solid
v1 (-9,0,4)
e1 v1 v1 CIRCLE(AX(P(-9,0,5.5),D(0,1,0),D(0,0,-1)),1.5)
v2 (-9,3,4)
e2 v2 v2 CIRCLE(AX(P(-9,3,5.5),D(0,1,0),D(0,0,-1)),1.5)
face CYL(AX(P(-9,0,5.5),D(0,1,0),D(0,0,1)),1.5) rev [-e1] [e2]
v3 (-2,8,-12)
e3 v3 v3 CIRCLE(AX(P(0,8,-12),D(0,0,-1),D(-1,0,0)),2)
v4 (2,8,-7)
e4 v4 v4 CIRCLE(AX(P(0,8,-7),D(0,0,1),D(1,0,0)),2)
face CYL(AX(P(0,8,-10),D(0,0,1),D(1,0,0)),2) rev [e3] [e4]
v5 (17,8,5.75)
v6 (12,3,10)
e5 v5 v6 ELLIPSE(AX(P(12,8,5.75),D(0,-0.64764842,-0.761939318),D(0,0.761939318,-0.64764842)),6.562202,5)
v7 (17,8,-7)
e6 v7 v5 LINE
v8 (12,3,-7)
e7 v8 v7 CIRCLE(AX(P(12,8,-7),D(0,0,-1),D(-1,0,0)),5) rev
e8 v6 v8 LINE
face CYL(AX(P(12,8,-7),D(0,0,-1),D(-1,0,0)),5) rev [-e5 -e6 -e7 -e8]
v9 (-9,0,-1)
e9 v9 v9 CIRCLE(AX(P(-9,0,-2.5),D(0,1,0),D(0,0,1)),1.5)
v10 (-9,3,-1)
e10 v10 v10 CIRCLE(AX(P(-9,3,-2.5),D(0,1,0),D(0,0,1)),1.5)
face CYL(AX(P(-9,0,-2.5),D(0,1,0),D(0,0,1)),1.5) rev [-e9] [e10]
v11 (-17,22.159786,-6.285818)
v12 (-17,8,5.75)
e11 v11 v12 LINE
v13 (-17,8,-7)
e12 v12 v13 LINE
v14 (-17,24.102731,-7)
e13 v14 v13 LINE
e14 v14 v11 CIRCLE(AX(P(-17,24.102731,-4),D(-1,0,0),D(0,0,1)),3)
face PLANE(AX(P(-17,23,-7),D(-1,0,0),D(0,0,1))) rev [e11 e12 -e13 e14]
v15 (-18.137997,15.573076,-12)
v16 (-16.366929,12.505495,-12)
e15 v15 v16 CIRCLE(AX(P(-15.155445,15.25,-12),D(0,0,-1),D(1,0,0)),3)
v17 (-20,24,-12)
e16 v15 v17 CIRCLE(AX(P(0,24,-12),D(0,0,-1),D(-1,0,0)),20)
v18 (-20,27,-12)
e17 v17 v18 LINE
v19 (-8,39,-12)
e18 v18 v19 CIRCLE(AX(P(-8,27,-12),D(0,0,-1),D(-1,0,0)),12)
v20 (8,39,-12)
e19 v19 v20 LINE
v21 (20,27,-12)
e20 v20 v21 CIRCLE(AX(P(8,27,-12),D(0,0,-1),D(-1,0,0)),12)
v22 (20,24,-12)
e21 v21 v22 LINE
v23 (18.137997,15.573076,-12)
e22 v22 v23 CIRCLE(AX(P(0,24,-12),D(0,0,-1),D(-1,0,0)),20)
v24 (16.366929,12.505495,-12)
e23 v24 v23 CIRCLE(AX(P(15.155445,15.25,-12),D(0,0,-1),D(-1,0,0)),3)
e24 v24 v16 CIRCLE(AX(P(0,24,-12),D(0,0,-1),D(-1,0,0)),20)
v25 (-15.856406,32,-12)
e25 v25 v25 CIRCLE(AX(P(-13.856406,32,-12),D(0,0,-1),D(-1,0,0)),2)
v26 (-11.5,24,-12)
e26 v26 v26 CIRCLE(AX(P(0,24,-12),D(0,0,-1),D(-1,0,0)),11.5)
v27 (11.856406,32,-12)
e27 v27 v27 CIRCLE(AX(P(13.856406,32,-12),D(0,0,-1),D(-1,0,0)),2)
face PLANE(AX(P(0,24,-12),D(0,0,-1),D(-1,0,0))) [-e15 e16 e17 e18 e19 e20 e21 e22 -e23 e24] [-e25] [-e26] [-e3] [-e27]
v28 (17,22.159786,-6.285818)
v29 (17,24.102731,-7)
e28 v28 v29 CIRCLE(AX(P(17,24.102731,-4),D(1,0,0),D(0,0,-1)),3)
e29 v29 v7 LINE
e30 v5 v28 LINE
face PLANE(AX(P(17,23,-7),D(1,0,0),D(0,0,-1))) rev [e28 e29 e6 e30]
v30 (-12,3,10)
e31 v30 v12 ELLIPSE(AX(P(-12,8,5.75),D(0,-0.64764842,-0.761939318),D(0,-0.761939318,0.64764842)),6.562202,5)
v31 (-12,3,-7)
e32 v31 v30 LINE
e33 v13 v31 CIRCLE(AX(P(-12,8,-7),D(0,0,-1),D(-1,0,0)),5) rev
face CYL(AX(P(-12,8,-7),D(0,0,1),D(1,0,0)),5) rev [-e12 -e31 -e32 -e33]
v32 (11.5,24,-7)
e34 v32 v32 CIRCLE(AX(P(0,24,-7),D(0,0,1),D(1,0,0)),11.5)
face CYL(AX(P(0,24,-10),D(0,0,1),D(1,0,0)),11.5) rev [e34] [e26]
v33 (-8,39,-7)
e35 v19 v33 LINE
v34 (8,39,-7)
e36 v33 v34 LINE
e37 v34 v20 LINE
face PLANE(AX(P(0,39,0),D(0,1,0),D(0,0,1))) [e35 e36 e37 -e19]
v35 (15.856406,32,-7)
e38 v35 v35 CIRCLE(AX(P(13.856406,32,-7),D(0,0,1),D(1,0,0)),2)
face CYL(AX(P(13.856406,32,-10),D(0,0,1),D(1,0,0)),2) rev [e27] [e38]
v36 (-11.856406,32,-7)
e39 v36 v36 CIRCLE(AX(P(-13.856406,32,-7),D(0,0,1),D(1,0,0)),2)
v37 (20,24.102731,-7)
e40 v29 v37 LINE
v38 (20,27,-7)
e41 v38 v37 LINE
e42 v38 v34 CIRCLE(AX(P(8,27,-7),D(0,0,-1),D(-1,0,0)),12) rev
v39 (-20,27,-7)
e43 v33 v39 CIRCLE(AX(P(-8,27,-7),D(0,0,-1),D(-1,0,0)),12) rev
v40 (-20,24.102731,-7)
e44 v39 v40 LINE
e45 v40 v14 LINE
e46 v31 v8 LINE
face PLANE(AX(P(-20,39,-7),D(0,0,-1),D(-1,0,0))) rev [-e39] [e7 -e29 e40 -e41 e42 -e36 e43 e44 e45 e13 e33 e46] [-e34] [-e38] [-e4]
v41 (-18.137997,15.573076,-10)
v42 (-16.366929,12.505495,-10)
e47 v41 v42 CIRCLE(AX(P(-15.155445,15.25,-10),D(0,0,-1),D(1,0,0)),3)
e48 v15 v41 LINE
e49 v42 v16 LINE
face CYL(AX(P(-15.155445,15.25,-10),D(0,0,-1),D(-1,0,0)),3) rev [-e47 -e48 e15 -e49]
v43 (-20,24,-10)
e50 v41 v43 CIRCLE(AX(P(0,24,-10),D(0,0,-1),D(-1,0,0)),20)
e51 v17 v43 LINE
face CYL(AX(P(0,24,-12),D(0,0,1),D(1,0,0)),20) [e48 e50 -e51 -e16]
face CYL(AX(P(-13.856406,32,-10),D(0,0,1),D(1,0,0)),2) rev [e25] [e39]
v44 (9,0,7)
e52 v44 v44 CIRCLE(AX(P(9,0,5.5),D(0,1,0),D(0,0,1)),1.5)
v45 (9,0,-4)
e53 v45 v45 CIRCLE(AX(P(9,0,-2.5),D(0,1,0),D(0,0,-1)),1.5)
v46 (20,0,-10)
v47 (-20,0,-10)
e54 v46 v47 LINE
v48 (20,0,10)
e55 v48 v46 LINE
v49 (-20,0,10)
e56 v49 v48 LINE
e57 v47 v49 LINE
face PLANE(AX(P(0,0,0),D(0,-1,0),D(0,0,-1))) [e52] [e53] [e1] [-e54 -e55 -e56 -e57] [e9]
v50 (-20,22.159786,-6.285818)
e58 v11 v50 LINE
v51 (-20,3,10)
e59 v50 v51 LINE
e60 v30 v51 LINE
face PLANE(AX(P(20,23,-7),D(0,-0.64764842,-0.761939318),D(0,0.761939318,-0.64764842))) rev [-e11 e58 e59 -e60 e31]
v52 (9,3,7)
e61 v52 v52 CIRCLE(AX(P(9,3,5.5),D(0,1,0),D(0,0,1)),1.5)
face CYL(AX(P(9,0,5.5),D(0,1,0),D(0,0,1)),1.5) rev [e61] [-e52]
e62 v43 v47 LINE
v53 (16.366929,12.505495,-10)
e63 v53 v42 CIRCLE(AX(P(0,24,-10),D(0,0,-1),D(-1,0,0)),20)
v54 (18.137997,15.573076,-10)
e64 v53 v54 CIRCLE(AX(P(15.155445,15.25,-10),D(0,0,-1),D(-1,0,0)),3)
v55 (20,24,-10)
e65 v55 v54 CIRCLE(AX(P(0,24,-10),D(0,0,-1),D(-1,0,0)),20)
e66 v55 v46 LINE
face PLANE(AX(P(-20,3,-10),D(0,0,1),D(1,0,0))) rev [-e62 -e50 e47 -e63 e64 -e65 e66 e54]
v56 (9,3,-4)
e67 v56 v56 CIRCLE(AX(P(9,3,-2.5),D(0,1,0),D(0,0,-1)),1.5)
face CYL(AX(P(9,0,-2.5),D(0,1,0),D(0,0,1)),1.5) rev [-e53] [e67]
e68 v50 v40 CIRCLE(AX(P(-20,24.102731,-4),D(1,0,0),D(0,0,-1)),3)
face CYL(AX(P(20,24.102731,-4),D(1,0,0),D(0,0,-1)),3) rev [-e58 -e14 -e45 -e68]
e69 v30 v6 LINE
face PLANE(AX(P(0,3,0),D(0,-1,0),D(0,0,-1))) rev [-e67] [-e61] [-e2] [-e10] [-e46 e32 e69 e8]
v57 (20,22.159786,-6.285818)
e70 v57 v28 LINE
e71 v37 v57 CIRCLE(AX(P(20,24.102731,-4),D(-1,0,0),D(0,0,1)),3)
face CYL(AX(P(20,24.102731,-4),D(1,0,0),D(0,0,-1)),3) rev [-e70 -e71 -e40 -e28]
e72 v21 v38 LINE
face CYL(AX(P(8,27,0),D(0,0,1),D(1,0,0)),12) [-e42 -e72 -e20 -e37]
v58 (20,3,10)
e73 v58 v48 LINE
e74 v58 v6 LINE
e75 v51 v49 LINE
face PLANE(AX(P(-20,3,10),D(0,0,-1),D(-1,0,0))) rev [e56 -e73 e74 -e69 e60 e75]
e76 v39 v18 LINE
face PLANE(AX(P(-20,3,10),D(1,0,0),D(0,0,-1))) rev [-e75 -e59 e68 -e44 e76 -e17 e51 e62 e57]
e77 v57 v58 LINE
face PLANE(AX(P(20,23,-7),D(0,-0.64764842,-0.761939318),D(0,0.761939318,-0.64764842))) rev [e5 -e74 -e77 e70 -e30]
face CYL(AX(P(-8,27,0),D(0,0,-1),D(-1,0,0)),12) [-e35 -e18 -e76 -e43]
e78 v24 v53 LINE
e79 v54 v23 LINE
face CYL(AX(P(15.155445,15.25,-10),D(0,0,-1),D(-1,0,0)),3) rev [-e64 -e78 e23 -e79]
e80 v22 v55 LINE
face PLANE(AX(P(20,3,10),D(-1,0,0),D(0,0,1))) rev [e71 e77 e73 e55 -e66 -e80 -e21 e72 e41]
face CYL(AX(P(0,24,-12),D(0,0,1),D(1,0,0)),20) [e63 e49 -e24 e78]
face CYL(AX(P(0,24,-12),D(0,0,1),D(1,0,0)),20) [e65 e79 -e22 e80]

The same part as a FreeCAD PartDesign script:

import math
import FreeCAD as App
import Part
import Sketcher

V = App.Vector
Q = App.Units.Quantity


def edges_at(feature, points):
    """Names of the edges that pass closest to the given points."""
    edges = feature.Shape.Edges
    near = lambda p: min(range(len(edges)), key=lambda i: edges[i].distToShape(Part.Vertex(*p))[0])
    return sorted({f"Edge{near(p) + 1}" for p in points})


def add_polygon(sketch, points):
    """Adds a closed chain of lines whose ends are joined by coincident constraints."""
    first, n = sketch.GeometryCount, len(points)
    for a, b in zip(points, points[1:] + points[:1]):
        sketch.addGeometry(Part.LineSegment(App.Vector(*a, 0), App.Vector(*b, 0)), False)
    for i in range(n):
        sketch.addConstraint(Sketcher.Constraint("Coincident", first + i, 2, first + (i + 1) % n, 1))

doc = App.newDocument("Part")
body = doc.addObject("PartDesign::Body", "Body")

# Sketch on XZ plane
sketch1 = doc.addObject("Sketcher::SketchObject", "Sketch")
body.addObject(sketch1)
sketch1.AttachmentSupport = (doc.XZ_Plane, [""])
sketch1.MapMode = "FlatFace"
add_polygon(sketch1, [(-20, -10), (-20, 10), (20, 10), (20, -10)])  # lines 0-3
sketch1.addConstraint(Sketcher.Constraint("Vertical", 0))
sketch1.addConstraint(Sketcher.Constraint("Horizontal", 1))
sketch1.addConstraint(Sketcher.Constraint("Vertical", 2))
sketch1.addConstraint(Sketcher.Constraint("Horizontal", 3))
sketch1.addConstraint(Sketcher.Constraint("Symmetric", 0, 2, 2, 2, -1, 1))
sketch1.addConstraint(Sketcher.Constraint("DistanceX", 1, 1, 1, 2, Q("40 mm")))
sketch1.addConstraint(Sketcher.Constraint("DistanceY", 0, 1, 0, 2, Q("20 mm")))
pad1 = doc.addObject("PartDesign::Pad", "Pad")
body.addObject(pad1)
pad1.Profile = sketch1
pad1.Length = 3
pad1.Reversed = True

# Sketch on XZ plane
sketch2 = doc.addObject("Sketcher::SketchObject", "Sketch001")
body.addObject(sketch2)
sketch2.AttachmentSupport = (doc.XZ_Plane, [""])
sketch2.MapMode = "FlatFace"
sketch2.AttachmentOffset = App.Placement(V(0, 0, -3), App.Rotation())
add_polygon(sketch2, [(-20, -10), (-20, -7), (20, -7), (20, -10)])  # lines 0-3
sketch2.addConstraint(Sketcher.Constraint("Vertical", 0))
sketch2.addConstraint(Sketcher.Constraint("Horizontal", 1))
sketch2.addConstraint(Sketcher.Constraint("Vertical", 2))
sketch2.addConstraint(Sketcher.Constraint("Horizontal", 3))
sketch2.addConstraint(Sketcher.Constraint("DistanceX", 1, 1, 1, 2, Q("40 mm")))
sketch2.addConstraint(Sketcher.Constraint("DistanceY", 0, 1, 0, 2, Q("3 mm")))
sketch2.addConstraint(Sketcher.Constraint("DistanceX", 0, 2, -1, 1, Q("20 mm")))
sketch2.addConstraint(Sketcher.Constraint("DistanceY", 0, 2, -1, 1, Q("7 mm")))
pad2 = doc.addObject("PartDesign::Pad", "Pad001")
body.addObject(pad2)
pad2.Profile = sketch2
pad2.Length = 36
pad2.Reversed = True

# Sketch on XY plane
sketch3 = doc.addObject("Sketcher::SketchObject", "Sketch002")
body.addObject(sketch3)
sketch3.AttachmentSupport = (doc.XY_Plane, [""])
sketch3.MapMode = "FlatFace"
sketch3.AttachmentOffset = App.Placement(V(0, 0, -7), App.Rotation())
sketch3.addGeometry(Part.Circle(V(0, 24, 0), V(0, 0, 1), 11.5), False)
sketch3.addGeometry(Part.Circle(V(13.9, 32, 0), V(0, 0, 1), 2), False)
sketch3.addGeometry(Part.Circle(V(0, 8, 0), V(0, 0, 1), 2), False)
sketch3.addGeometry(Part.Circle(V(-13.9, 32, 0), V(0, 0, 1), 2), False)
sketch3.addConstraint(Sketcher.Constraint("Equal", 1, 2))
sketch3.addConstraint(Sketcher.Constraint("Equal", 2, 3))
sketch3.addConstraint(Sketcher.Constraint("Symmetric", 1, 3, 3, 3, -2))
sketch3.addConstraint(Sketcher.Constraint("PointOnObject", 0, 3, -2))
sketch3.addConstraint(Sketcher.Constraint("PointOnObject", 2, 3, -2))
sketch3.addConstraint(Sketcher.Constraint("Diameter", 0, Q("23 mm")))
sketch3.addConstraint(Sketcher.Constraint("Diameter", 1, Q("4 mm")))
sketch3.addConstraint(Sketcher.Constraint("DistanceY", -1, 1, 0, 3, Q("24 mm")))
sketch3.addConstraint(Sketcher.Constraint("DistanceY", -1, 1, 1, 3, Q("32 mm")))
sketch3.addConstraint(Sketcher.Constraint("DistanceY", -1, 1, 2, 3, Q("8 mm")))
sketch3.addConstraint(Sketcher.Constraint("DistanceX", -1, 1, 1, 3, Q("13.856406 mm")))
pocket1 = doc.addObject("PartDesign::Pocket", "Pocket")
body.addObject(pocket1)
pocket1.Profile = sketch3
pocket1.Type = "ThroughAll"
doc.recompute()

fillet = doc.addObject("PartDesign::Fillet", "Fillet")
body.addObject(fillet)
fillet.Base = (pocket1, edges_at(pocket1, [(-20, 39, -8.5), (20, 39, -8.5)]))
fillet.Radius = 12

# Sketch on XY plane
sketch4 = doc.addObject("Sketcher::SketchObject", "Sketch003")
body.addObject(sketch4)
sketch4.AttachmentSupport = (doc.XY_Plane, [""])
sketch4.MapMode = "FlatFace"
sketch4.AttachmentOffset = App.Placement(V(0, 0, -10), App.Rotation())
sketch4.addGeometry(Part.LineSegment(V(-8, 39, 0), V(8, 39, 0)), False)
sketch4.addGeometry(Part.ArcOfCircle(Part.Circle(V(8, 27, 0), V(0, 0, 1), 12), math.radians(0), math.radians(90)), False)
sketch4.addGeometry(Part.LineSegment(V(20, 27, 0), V(20, 24, 0)), False)
sketch4.addGeometry(Part.ArcOfCircle(Part.Circle(V(0, 24, 0), V(0, 0, 1), 20), math.radians(180), math.radians(360)), False)
sketch4.addGeometry(Part.LineSegment(V(-20, 24, 0), V(-20, 27, 0)), False)
sketch4.addGeometry(Part.ArcOfCircle(Part.Circle(V(-8, 27, 0), V(0, 0, 1), 12), math.radians(90), math.radians(180)), False)
sketch4.addGeometry(Part.Circle(V(0, 8, 0), V(0, 0, 1), 2), False)
sketch4.addGeometry(Part.Circle(V(-13.9, 32, 0), V(0, 0, 1), 2), False)
sketch4.addGeometry(Part.Circle(V(0, 24, 0), V(0, 0, 1), 11.5), False)
sketch4.addGeometry(Part.Circle(V(13.9, 32, 0), V(0, 0, 1), 2), False)
sketch4.addConstraint(Sketcher.Constraint("Tangent", 0, 2, 1, 2))
sketch4.addConstraint(Sketcher.Constraint("Tangent", 1, 1, 2, 1))
sketch4.addConstraint(Sketcher.Constraint("Tangent", 2, 2, 3, 2))
sketch4.addConstraint(Sketcher.Constraint("Tangent", 3, 1, 4, 1))
sketch4.addConstraint(Sketcher.Constraint("Tangent", 4, 2, 5, 2))
sketch4.addConstraint(Sketcher.Constraint("Tangent", 5, 1, 0, 1))
sketch4.addConstraint(Sketcher.Constraint("Horizontal", 0))
sketch4.addConstraint(Sketcher.Constraint("Vertical", 2))
sketch4.addConstraint(Sketcher.Constraint("Vertical", 4))
sketch4.addConstraint(Sketcher.Constraint("Coincident", 8, 3, 3, 3))
sketch4.addConstraint(Sketcher.Constraint("Equal", 1, 5))
sketch4.addConstraint(Sketcher.Constraint("Equal", 6, 7))
sketch4.addConstraint(Sketcher.Constraint("Equal", 7, 9))
sketch4.addConstraint(Sketcher.Constraint("Symmetric", 7, 3, 9, 3, -2))
sketch4.addConstraint(Sketcher.Constraint("PointOnObject", 3, 3, -2))
sketch4.addConstraint(Sketcher.Constraint("PointOnObject", 6, 3, -2))
sketch4.addConstraint(Sketcher.Constraint("Diameter", 6, Q("4 mm")))
sketch4.addConstraint(Sketcher.Constraint("Diameter", 8, Q("23 mm")))
sketch4.addConstraint(Sketcher.Constraint("Radius", 1, Q("12 mm")))
sketch4.addConstraint(Sketcher.Constraint("Radius", 3, Q("20 mm")))
sketch4.addConstraint(Sketcher.Constraint("DistanceY", 2, 2, 2, 1, Q("3 mm")))
sketch4.addConstraint(Sketcher.Constraint("DistanceY", -1, 1, 1, 3, Q("27 mm")))
sketch4.addConstraint(Sketcher.Constraint("DistanceY", -1, 1, 6, 3, Q("8 mm")))
sketch4.addConstraint(Sketcher.Constraint("DistanceY", -1, 1, 7, 3, Q("32 mm")))
sketch4.addConstraint(Sketcher.Constraint("DistanceX", 7, 3, -1, 1, Q("13.856406 mm")))
pad3 = doc.addObject("PartDesign::Pad", "Pad002")
body.addObject(pad3)
pad3.Profile = sketch4
pad3.Length = 2
pad3.Reversed = True

# Sketch on XY plane
sketch5 = doc.addObject("Sketcher::SketchObject", "Sketch004")
body.addObject(sketch5)
sketch5.AttachmentSupport = (doc.XY_Plane, [""])
sketch5.MapMode = "FlatFace"
sketch5.AttachmentOffset = App.Placement(V(0, 0, -12), App.Rotation())
sketch5.addGeometry(Part.Circle(V(15.2, 15.2, 0), V(0, 0, 1), 3), False)
sketch5.addGeometry(Part.Circle(V(-15.2, 15.2, 0), V(0, 0, 1), 3), False)
sketch5.addConstraint(Sketcher.Constraint("Equal", 0, 1))
sketch5.addConstraint(Sketcher.Constraint("Symmetric", 0, 3, 1, 3, -2))
sketch5.addConstraint(Sketcher.Constraint("Diameter", 0, Q("6 mm")))
sketch5.addConstraint(Sketcher.Constraint("DistanceY", -1, 1, 0, 3, Q("15.25 mm")))
sketch5.addConstraint(Sketcher.Constraint("DistanceX", 1, 3, 0, 3, Q("30.310889 mm")))
pocket2 = doc.addObject("PartDesign::Pocket", "Pocket001")
body.addObject(pocket2)
pocket2.Profile = sketch5
pocket2.Length = 2
pocket2.Reversed = True

# Sketch on XZ plane
sketch6 = doc.addObject("Sketcher::SketchObject", "Sketch005")
body.addObject(sketch6)
sketch6.AttachmentSupport = (doc.XZ_Plane, [""])
sketch6.MapMode = "FlatFace"
sketch6.AttachmentOffset = App.Placement(V(0, 0, -3), App.Rotation())
add_polygon(sketch6, [(-20, -7), (-20, 10), (-17, 10), (-17, -7)])  # lines 0-3
add_polygon(sketch6, [(17, -7), (17, 10), (20, 10), (20, -7)])  # lines 4-7
sketch6.addConstraint(Sketcher.Constraint("Vertical", 0))
sketch6.addConstraint(Sketcher.Constraint("Horizontal", 1))
sketch6.addConstraint(Sketcher.Constraint("Vertical", 2))
sketch6.addConstraint(Sketcher.Constraint("Horizontal", 3))
sketch6.addConstraint(Sketcher.Constraint("Vertical", 4))
sketch6.addConstraint(Sketcher.Constraint("Horizontal", 5))
sketch6.addConstraint(Sketcher.Constraint("Vertical", 6))
sketch6.addConstraint(Sketcher.Constraint("Horizontal", 7))
sketch6.addConstraint(Sketcher.Constraint("Symmetric", 1, 2, 4, 2, -2))
sketch6.addConstraint(Sketcher.Constraint("Symmetric", 3, 2, 6, 2, -2))
sketch6.addConstraint(Sketcher.Constraint("DistanceX", 1, 1, 1, 2, Q("3 mm")))
sketch6.addConstraint(Sketcher.Constraint("DistanceY", 0, 1, 0, 2, Q("17 mm")))
sketch6.addConstraint(Sketcher.Constraint("DistanceX", 0, 2, -1, 1, Q("20 mm")))
sketch6.addConstraint(Sketcher.Constraint("DistanceY", -1, 1, 0, 2, Q("10 mm")))
pad4 = doc.addObject("PartDesign::Pad", "Pad003")
body.addObject(pad4)
pad4.Profile = sketch6
pad4.Length = 20
pad4.Reversed = True

# Sketch on YZ plane
sketch7 = doc.addObject("Sketcher::SketchObject", "Sketch006")
body.addObject(sketch7)
sketch7.AttachmentSupport = (doc.YZ_Plane, [""])
sketch7.MapMode = "FlatFace"
sketch7.AttachmentOffset = App.Placement(V(0, 0, -20), App.Rotation())
add_polygon(sketch7, [(23, -7), (3, 10), (23, 10)])  # lines 0-2
sketch7.addConstraint(Sketcher.Constraint("Horizontal", 1))
sketch7.addConstraint(Sketcher.Constraint("Vertical", 2))
sketch7.addConstraint(Sketcher.Constraint("DistanceX", 1, 1, 1, 2, Q("20 mm")))
sketch7.addConstraint(Sketcher.Constraint("DistanceY", 2, 2, 2, 1, Q("17 mm")))
sketch7.addConstraint(Sketcher.Constraint("DistanceX", -1, 1, 0, 2, Q("3 mm")))
sketch7.addConstraint(Sketcher.Constraint("DistanceY", -1, 1, 0, 2, Q("10 mm")))
pocket3 = doc.addObject("PartDesign::Pocket", "Pocket002")
body.addObject(pocket3)
pocket3.Profile = sketch7
pocket3.Type = "ThroughAll"
pocket3.Reversed = True

# Sketch on XZ plane
sketch8 = doc.addObject("Sketcher::SketchObject", "Sketch007")
body.addObject(sketch8)
sketch8.AttachmentSupport = (doc.XZ_Plane, [""])
sketch8.MapMode = "FlatFace"
sketch8.AttachmentOffset = App.Placement(V(0, 0, -3), App.Rotation())
sketch8.addGeometry(Part.Circle(V(-9, -2.5, 0), V(0, 0, 1), 1.5), False)
sketch8.addGeometry(Part.Circle(V(9, -2.5, 0), V(0, 0, 1), 1.5), False)
sketch8.addGeometry(Part.Circle(V(9, 5.5, 0), V(0, 0, 1), 1.5), False)
sketch8.addGeometry(Part.Circle(V(-9, 5.5, 0), V(0, 0, 1), 1.5), False)
sketch8.addConstraint(Sketcher.Constraint("Equal", 0, 1))
sketch8.addConstraint(Sketcher.Constraint("Equal", 1, 2))
sketch8.addConstraint(Sketcher.Constraint("Equal", 2, 3))
sketch8.addConstraint(Sketcher.Constraint("Symmetric", 0, 3, 1, 3, -2))
sketch8.addConstraint(Sketcher.Constraint("Symmetric", 2, 3, 3, 3, -2))
sketch8.addConstraint(Sketcher.Constraint("Vertical", 1, 3, 2, 3))
sketch8.addConstraint(Sketcher.Constraint("Diameter", 0, Q("3 mm")))
sketch8.addConstraint(Sketcher.Constraint("DistanceX", 0, 3, -1, 1, Q("9 mm")))
sketch8.addConstraint(Sketcher.Constraint("DistanceY", 1, 3, 2, 3, Q("8 mm")))
sketch8.addConstraint(Sketcher.Constraint("DistanceY", 0, 3, -1, 1, Q("2.5 mm")))
pocket4 = doc.addObject("PartDesign::Pocket", "Pocket003")
body.addObject(pocket4)
pocket4.Profile = sketch8
pocket4.Type = "ThroughAll"
pocket4.Reversed = True
doc.recompute()

fillet2 = doc.addObject("PartDesign::Fillet", "Fillet001")
body.addObject(fillet2)
fillet2.Base = (pocket4, edges_at(pocket4, [(-17, 3, 1.5), (17, 3, 1.5)]))
fillet2.Radius = 5
doc.recompute()

fillet3 = doc.addObject("PartDesign::Fillet", "Fillet002")
body.addObject(fillet3)
fillet3.Base = (fillet2, edges_at(fillet2, [(-18.5, 23, -7), (18.5, 23, -7)]))
fillet3.Radius = 3

doc.recompute()
